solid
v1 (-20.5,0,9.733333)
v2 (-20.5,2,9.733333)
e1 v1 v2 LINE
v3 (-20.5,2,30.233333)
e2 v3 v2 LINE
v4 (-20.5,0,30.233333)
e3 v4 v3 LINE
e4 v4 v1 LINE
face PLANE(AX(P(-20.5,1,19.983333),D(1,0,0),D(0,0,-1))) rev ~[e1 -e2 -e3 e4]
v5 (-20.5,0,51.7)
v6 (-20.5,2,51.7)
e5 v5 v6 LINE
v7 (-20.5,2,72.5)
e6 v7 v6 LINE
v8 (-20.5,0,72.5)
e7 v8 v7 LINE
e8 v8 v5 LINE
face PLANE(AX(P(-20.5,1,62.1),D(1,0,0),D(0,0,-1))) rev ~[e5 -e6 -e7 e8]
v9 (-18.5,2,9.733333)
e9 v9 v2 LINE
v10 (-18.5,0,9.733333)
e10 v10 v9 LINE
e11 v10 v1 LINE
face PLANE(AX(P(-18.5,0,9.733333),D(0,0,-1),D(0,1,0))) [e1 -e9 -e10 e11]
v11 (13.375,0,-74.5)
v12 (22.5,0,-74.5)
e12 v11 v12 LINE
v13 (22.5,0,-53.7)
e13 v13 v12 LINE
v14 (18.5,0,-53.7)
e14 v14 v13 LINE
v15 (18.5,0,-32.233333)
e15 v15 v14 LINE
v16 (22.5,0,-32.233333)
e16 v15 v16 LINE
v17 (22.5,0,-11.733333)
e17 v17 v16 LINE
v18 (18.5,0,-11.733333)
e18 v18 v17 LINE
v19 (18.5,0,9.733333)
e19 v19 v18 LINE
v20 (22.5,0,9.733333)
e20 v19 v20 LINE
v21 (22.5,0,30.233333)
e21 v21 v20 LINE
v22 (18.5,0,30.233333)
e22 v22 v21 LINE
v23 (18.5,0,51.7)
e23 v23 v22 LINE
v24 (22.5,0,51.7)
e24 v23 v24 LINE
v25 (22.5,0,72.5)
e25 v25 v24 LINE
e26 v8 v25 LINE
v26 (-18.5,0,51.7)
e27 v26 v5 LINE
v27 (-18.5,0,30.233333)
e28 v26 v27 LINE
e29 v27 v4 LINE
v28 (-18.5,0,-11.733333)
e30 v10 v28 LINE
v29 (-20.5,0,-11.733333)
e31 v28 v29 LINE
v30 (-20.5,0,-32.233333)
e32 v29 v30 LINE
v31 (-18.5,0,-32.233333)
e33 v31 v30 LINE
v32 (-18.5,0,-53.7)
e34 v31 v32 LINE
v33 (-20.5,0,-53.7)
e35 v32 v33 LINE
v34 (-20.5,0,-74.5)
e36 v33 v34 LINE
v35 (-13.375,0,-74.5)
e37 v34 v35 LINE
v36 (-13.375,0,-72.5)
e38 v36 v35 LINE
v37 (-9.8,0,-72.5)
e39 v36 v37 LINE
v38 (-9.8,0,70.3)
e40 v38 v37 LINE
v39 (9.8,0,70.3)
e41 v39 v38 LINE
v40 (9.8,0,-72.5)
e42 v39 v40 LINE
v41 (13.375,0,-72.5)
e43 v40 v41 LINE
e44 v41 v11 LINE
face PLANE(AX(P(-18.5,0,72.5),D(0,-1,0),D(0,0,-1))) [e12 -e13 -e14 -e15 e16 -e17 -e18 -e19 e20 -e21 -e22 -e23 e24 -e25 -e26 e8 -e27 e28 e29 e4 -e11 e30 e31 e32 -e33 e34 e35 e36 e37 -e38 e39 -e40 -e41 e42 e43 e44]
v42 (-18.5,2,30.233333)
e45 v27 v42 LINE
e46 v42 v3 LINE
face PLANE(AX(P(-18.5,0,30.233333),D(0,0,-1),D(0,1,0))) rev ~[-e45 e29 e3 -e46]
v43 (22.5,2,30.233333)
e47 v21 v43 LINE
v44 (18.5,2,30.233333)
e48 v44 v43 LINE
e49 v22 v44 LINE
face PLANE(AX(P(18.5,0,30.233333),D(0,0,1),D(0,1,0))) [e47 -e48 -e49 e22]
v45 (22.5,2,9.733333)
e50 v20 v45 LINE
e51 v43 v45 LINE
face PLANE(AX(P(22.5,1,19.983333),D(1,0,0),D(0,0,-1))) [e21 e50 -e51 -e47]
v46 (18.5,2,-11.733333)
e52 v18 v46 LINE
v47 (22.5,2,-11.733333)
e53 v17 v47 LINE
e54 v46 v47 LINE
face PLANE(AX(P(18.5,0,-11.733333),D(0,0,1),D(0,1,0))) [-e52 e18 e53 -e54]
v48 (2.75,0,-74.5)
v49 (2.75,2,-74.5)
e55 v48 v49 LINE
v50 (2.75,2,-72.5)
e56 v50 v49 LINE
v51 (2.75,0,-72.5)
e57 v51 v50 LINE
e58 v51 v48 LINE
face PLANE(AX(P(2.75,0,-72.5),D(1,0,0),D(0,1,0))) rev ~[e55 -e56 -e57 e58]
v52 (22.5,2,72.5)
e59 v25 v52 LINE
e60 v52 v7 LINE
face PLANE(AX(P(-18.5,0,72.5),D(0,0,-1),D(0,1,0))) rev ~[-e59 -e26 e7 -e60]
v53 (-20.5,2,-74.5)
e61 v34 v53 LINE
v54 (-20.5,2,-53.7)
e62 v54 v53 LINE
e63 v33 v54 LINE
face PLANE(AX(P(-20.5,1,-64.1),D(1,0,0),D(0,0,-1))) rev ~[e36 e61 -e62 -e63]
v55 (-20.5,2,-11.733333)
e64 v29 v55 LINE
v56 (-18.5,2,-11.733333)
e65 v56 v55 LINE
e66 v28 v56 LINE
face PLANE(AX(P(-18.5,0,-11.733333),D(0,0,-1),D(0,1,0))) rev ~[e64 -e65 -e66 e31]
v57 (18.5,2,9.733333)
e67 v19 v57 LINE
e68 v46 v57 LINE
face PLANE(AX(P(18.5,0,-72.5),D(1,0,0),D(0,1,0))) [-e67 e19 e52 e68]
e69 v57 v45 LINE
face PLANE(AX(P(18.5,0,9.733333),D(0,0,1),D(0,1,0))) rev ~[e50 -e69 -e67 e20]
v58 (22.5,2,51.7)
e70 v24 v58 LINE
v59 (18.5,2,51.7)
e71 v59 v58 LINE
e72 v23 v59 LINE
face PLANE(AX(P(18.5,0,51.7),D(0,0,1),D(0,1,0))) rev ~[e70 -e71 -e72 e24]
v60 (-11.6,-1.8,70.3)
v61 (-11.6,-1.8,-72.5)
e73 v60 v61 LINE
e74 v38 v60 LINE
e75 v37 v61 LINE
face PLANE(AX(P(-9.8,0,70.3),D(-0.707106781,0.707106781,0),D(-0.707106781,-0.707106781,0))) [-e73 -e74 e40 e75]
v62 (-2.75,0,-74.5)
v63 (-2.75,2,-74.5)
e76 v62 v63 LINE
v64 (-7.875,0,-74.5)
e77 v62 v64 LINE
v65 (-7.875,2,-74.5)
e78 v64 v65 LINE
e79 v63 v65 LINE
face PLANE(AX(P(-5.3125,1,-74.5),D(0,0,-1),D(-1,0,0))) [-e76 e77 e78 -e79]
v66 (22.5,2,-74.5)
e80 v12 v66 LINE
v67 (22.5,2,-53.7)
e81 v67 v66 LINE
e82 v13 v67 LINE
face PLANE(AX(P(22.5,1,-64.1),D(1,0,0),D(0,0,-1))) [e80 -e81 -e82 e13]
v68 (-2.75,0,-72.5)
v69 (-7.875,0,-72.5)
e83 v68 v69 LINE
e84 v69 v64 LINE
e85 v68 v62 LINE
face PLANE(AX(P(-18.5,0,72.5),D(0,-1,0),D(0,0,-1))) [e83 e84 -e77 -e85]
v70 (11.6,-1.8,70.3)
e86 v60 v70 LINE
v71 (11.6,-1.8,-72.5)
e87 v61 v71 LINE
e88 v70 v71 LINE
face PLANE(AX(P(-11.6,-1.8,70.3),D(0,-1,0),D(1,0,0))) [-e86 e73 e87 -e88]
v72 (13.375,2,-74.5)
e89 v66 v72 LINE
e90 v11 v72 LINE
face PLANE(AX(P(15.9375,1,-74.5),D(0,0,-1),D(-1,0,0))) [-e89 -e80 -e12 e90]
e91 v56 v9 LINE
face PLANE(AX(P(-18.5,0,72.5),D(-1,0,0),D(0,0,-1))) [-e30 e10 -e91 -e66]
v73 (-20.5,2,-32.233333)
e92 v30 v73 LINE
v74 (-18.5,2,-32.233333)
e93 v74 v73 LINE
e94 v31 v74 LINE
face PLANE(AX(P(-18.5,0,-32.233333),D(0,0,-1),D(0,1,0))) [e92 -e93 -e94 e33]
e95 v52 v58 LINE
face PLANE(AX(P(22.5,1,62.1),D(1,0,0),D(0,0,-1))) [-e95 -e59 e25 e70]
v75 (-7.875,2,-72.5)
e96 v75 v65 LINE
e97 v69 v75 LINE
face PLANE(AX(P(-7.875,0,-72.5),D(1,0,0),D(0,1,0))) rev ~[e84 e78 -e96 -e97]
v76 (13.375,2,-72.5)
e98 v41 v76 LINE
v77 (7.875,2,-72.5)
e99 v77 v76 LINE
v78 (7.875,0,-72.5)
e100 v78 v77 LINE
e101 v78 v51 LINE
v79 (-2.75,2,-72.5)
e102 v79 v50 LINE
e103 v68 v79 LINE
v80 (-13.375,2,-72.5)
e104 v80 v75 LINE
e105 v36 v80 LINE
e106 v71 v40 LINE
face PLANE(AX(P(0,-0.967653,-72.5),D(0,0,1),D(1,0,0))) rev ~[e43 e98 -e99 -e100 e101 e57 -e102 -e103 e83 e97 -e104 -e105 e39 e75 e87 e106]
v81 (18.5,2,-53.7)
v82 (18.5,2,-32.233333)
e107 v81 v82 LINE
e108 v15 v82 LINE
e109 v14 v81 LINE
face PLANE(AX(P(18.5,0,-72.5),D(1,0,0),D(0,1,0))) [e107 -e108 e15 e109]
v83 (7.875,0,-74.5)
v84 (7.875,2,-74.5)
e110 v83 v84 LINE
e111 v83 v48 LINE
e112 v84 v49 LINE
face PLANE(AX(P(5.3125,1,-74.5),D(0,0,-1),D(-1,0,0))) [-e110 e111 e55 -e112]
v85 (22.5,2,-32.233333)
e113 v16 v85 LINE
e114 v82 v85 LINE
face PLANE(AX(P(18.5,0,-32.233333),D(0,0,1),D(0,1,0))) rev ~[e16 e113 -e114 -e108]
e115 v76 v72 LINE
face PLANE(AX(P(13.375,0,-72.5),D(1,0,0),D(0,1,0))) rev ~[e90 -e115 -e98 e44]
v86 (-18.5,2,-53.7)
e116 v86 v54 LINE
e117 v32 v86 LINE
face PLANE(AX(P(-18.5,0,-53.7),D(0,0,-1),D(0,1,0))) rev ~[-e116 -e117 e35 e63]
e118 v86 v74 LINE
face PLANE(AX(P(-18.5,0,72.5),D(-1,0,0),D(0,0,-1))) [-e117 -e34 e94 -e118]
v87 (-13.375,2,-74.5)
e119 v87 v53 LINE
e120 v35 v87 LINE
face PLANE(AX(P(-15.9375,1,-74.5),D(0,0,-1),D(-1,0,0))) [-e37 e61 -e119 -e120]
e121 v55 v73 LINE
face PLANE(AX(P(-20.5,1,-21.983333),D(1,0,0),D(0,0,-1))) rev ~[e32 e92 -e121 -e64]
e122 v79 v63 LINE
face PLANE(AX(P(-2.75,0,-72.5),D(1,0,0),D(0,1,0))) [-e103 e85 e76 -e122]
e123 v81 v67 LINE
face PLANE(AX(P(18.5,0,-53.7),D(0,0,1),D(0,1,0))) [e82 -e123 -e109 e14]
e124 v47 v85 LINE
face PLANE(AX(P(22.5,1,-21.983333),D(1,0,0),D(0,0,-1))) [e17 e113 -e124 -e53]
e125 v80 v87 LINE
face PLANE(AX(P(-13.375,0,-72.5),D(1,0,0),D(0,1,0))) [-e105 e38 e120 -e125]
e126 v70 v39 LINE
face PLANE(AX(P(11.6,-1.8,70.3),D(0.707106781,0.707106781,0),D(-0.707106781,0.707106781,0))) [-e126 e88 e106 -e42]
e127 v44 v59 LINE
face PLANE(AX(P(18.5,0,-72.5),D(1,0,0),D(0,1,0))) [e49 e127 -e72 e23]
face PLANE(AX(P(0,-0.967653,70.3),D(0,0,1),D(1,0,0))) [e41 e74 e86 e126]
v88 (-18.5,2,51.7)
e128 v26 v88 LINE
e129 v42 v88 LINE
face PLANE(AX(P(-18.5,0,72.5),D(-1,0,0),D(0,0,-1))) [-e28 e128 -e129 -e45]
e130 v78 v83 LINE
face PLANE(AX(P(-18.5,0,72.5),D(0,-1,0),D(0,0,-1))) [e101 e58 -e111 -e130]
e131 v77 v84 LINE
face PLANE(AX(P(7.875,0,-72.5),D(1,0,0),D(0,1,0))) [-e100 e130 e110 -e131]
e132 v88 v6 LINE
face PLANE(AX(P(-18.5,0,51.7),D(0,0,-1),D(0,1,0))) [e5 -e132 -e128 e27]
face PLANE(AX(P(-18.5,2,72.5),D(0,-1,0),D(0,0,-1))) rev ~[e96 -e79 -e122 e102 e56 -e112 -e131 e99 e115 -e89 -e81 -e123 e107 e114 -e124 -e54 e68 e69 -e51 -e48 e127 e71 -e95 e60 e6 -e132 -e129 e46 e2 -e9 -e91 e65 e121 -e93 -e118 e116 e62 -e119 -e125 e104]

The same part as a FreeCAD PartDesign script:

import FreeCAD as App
import Part
import Sketcher
from FreeCAD import Vector
Q = App.Units.Quantity

doc = App.newDocument("Part")
body = doc.addObject("PartDesign::Body", "Body")

# Sketch on XZ plane
sketch1 = body.newObject("Sketcher::SketchObject", "Sketch")
sketch1.AttachmentSupport = (doc.getObject("XZ_Plane"), [""])
sketch1.MapMode = "FlatFace"
sketch1.addGeometry([
    Part.LineSegment(Vector(-18, -72, 0), Vector(-18, 72, 0)),
    Part.LineSegment(Vector(-18, 72, 0), Vector(18, 72, 0)),
    Part.LineSegment(Vector(18, 72, 0), Vector(18, -72, 0)),
    Part.LineSegment(Vector(18, -72, 0), Vector(-18, -72, 0)),
], False)
sketch1.addConstraint([
    Sketcher.Constraint("Coincident", 0, 2, 1, 1),
    Sketcher.Constraint("Coincident", 1, 2, 2, 1),
    Sketcher.Constraint("Coincident", 2, 2, 3, 1),
    Sketcher.Constraint("Coincident", 3, 2, 0, 1),
    Sketcher.Constraint("Vertical", 0),
    Sketcher.Constraint("Horizontal", 1),
    Sketcher.Constraint("Vertical", 2),
    Sketcher.Constraint("Horizontal", 3),
    Sketcher.Constraint("Symmetric", 0, 2, 2, 2, -1, 1),
    Sketcher.Constraint("DistanceX", 1, 1, 1, 2, Q("37 mm")),
    Sketcher.Constraint("DistanceY", 0, 1, 0, 2, Q("145 mm")),
])
pad1 = body.newObject("PartDesign::Pad", "Pad")
pad1.Profile = sketch1
pad1.Length = 2
pad1.Reversed = True

# Sketch on XY plane
sketch2 = body.newObject("Sketcher::SketchObject", "Sketch001")
sketch2.AttachmentSupport = (doc.getObject("XY_Plane"), [""])
sketch2.MapMode = "FlatFace"
sketch2.AttachmentOffset = App.Placement(Vector(0, 0, -72.5), App.Rotation())
sketch2.addGeometry([
    Part.LineSegment(Vector(18.5, 2, 0), Vector(18.5, 0, 0)),  # 0
    Part.LineSegment(Vector(18.5, 0, 0), Vector(13.4, 0, 0)),  # 1
    Part.LineSegment(Vector(13.4, 0, 0), Vector(13.4, 2, 0)),  # 2
    Part.LineSegment(Vector(13.4, 2, 0), Vector(18.5, 2, 0)),  # 3
    Part.LineSegment(Vector(7.9, 2, 0), Vector(7.9, 0, 0)),  # 4
    Part.LineSegment(Vector(7.9, 0, 0), Vector(2.8, 0, 0)),  # 5
    Part.LineSegment(Vector(2.8, 0, 0), Vector(2.8, 2, 0)),  # 6
    Part.LineSegment(Vector(2.8, 2, 0), Vector(7.9, 2, 0)),  # 7
    Part.LineSegment(Vector(-2.8, 2, 0), Vector(-2.8, 0, 0)),  # 8
    Part.LineSegment(Vector(-2.8, 0, 0), Vector(-7.9, 0, 0)),  # 9
    Part.LineSegment(Vector(-7.9, 0, 0), Vector(-7.9, 2, 0)),  # 10
    Part.LineSegment(Vector(-7.9, 2, 0), Vector(-2.8, 2, 0)),  # 11
    Part.LineSegment(Vector(-13.4, 2, 0), Vector(-13.4, 0, 0)),  # 12
    Part.LineSegment(Vector(-13.4, 0, 0), Vector(-18.5, 0, 0)),  # 13
    Part.LineSegment(Vector(-18.5, 0, 0), Vector(-18.5, 2, 0)),  # 14
    Part.LineSegment(Vector(-18.5, 2, 0), Vector(-13.4, 2, 0)),  # 15
], False)
sketch2.addConstraint([
    Sketcher.Constraint("Coincident", 0, 2, 1, 1),
    Sketcher.Constraint("Coincident", 1, 2, 2, 1),
    Sketcher.Constraint("Coincident", 2, 2, 3, 1),
    Sketcher.Constraint("Coincident", 3, 2, 0, 1),
    Sketcher.Constraint("Coincident", 4, 2, 5, 1),
    Sketcher.Constraint("Coincident", 5, 2, 6, 1),
    Sketcher.Constraint("Coincident", 6, 2, 7, 1),
    Sketcher.Constraint("Coincident", 7, 2, 4, 1),
    Sketcher.Constraint("Coincident", 8, 2, 9, 1),
    Sketcher.Constraint("Coincident", 9, 2, 10, 1),
    Sketcher.Constraint("Coincident", 10, 2, 11, 1),
    Sketcher.Constraint("Coincident", 11, 2, 8, 1),
    Sketcher.Constraint("Coincident", 12, 2, 13, 1),
    Sketcher.Constraint("Coincident", 13, 2, 14, 1),
    Sketcher.Constraint("Coincident", 14, 2, 15, 1),
    Sketcher.Constraint("Coincident", 15, 2, 12, 1),
    Sketcher.Constraint("Vertical", 0),
    Sketcher.Constraint("Horizontal", 1),
    Sketcher.Constraint("Vertical", 2),
    Sketcher.Constraint("Horizontal", 3),
    Sketcher.Constraint("Vertical", 4),
    Sketcher.Constraint("Horizontal", 5),
    Sketcher.Constraint("Vertical", 6),
    Sketcher.Constraint("Horizontal", 7),
    Sketcher.Constraint("Vertical", 8),
    Sketcher.Constraint("Horizontal", 9),
    Sketcher.Constraint("Vertical", 10),
    Sketcher.Constraint("Horizontal", 11),
    Sketcher.Constraint("Vertical", 12),
    Sketcher.Constraint("Horizontal", 13),
    Sketcher.Constraint("Vertical", 14),
    Sketcher.Constraint("Horizontal", 15),
    Sketcher.Constraint("Symmetric", 5, 2, 8, 2, -1, 1),
    Sketcher.Constraint("Symmetric", 1, 2, 12, 2, -1, 1),
    Sketcher.Constraint("Symmetric", 4, 2, 9, 2, -2),
    Sketcher.Constraint("Symmetric", 0, 2, 13, 2, -2),
    Sketcher.Constraint("Horizontal", 3, 2, 6, 2),
    Sketcher.Constraint("Horizontal", 7, 2, 10, 2),
    Sketcher.Constraint("Horizontal", 11, 2, 14, 2),
    Sketcher.Constraint("Equal", 3, 5),
    Sketcher.Constraint("DistanceY", 0, 2, 0, 1, Q("2 mm")),
    Sketcher.Constraint("DistanceX", -1, 1, 0, 2, Q("18.5 mm")),
    Sketcher.Constraint("DistanceX", 4, 2, 1, 2, Q("5.5 mm")),
    Sketcher.Constraint("DistanceX", 8, 2, 5, 2, Q("5.5 mm")),
])
pad2 = body.newObject("PartDesign::Pad", "Pad001")
pad2.Profile = sketch2
pad2.Length = 2
pad2.Reversed = True

# Sketch on YZ plane
sketch3 = body.newObject("Sketcher::SketchObject", "Sketch002")
sketch3.AttachmentSupport = (doc.getObject("YZ_Plane"), [""])
sketch3.MapMode = "FlatFace"
sketch3.AttachmentOffset = App.Placement(Vector(0, 0, 18.5), App.Rotation())
sketch3.addGeometry([
    Part.LineSegment(Vector(2, 72.5, 0), Vector(0, 72.5, 0)),  # 0
    Part.LineSegment(Vector(0, 72.5, 0), Vector(0, 51.7, 0)),  # 1
    Part.LineSegment(Vector(0, 51.7, 0), Vector(2, 51.7, 0)),  # 2
    Part.LineSegment(Vector(2, 51.7, 0), Vector(2, 72.5, 0)),  # 3
    Part.LineSegment(Vector(2, 30.2, 0), Vector(0, 30.2, 0)),  # 4
    Part.LineSegment(Vector(0, 30.2, 0), Vector(0, 9.7, 0)),  # 5
    Part.LineSegment(Vector(0, 9.7, 0), Vector(2, 9.7, 0)),  # 6
    Part.LineSegment(Vector(2, 9.7, 0), Vector(2, 30.2, 0)),  # 7
    Part.LineSegment(Vector(2, -11.7, 0), Vector(0, -11.7, 0)),  # 8
    Part.LineSegment(Vector(0, -11.7, 0), Vector(0, -32.2, 0)),  # 9
    Part.LineSegment(Vector(0, -32.2, 0), Vector(2, -32.2, 0)),  # 10
    Part.LineSegment(Vector(2, -32.2, 0), Vector(2, -11.7, 0)),  # 11
    Part.LineSegment(Vector(2, -53.7, 0), Vector(0, -53.7, 0)),  # 12
    Part.LineSegment(Vector(0, -53.7, 0), Vector(0, -74.5, 0)),  # 13
    Part.LineSegment(Vector(0, -74.5, 0), Vector(2, -74.5, 0)),  # 14
    Part.LineSegment(Vector(2, -74.5, 0), Vector(2, -53.7, 0)),  # 15
], False)
sketch3.addConstraint([
    Sketcher.Constraint("Coincident", 0, 2, 1, 1),
    Sketcher.Constraint("Coincident", 1, 2, 2, 1),
    Sketcher.Constraint("Coincident", 2, 2, 3, 1),
    Sketcher.Constraint("Coincident", 3, 2, 0, 1),
    Sketcher.Constraint("Coincident", 4, 2, 5, 1),
    Sketcher.Constraint("Coincident", 5, 2, 6, 1),
    Sketcher.Constraint("Coincident", 6, 2, 7, 1),
    Sketcher.Constraint("Coincident", 7, 2, 4, 1),
    Sketcher.Constraint("Coincident", 8, 2, 9, 1),
    Sketcher.Constraint("Coincident", 9, 2, 10, 1),
    Sketcher.Constraint("Coincident", 10, 2, 11, 1),
    Sketcher.Constraint("Coincident", 11, 2, 8, 1),
    Sketcher.Constraint("Coincident", 12, 2, 13, 1),
    Sketcher.Constraint("Coincident", 13, 2, 14, 1),
    Sketcher.Constraint("Coincident", 14, 2, 15, 1),
    Sketcher.Constraint("Coincident", 15, 2, 12, 1),
    Sketcher.Constraint("Horizontal", 0),
    Sketcher.Constraint("Vertical", 1),
    Sketcher.Constraint("Horizontal", 2),
    Sketcher.Constraint("Vertical", 3),
    Sketcher.Constraint("Horizontal", 4),
    Sketcher.Constraint("Vertical", 5),
    Sketcher.Constraint("Horizontal", 6),
    Sketcher.Constraint("Vertical", 7),
    Sketcher.Constraint("Horizontal", 8),
    Sketcher.Constraint("Vertical", 9),
    Sketcher.Constraint("Horizontal", 10),
    Sketcher.Constraint("Vertical", 11),
    Sketcher.Constraint("Horizontal", 12),
    Sketcher.Constraint("Vertical", 13),
    Sketcher.Constraint("Horizontal", 14),
    Sketcher.Constraint("Vertical", 15),
    Sketcher.Constraint("PointOnObject", 0, 2, -2),
    Sketcher.Constraint("PointOnObject", 4, 2, -2),
    Sketcher.Constraint("PointOnObject", 8, 2, -2),
    Sketcher.Constraint("PointOnObject", 12, 2, -2),
    Sketcher.Constraint("Vertical", 3, 2, 6, 2),
    Sketcher.Constraint("Vertical", 7, 2, 10, 2),
    Sketcher.Constraint("Vertical", 11, 2, 14, 2),
    Sketcher.Constraint("Equal", 7, 9),
    Sketcher.Constraint("Equal", 3, 13),
    Sketcher.Constraint("DistanceX", 0, 2, 0, 1, Q("2 mm")),
    Sketcher.Constraint("DistanceY", 1, 2, 1, 1, Q("20.8 mm")),
    Sketcher.Constraint("DistanceY", 5, 2, 5, 1, Q("20.5 mm")),
    Sketcher.Constraint("DistanceY", -1, 1, 0, 2, Q("72.5 mm")),
    Sketcher.Constraint("DistanceY", 12, 2, -1, 1, Q("53.7 mm")),
    Sketcher.Constraint("DistanceY", -1, 1, 4, 2, Q("30.233333 mm")),
    Sketcher.Constraint("DistanceY", 8, 2, -1, 1, Q("11.733333 mm")),
])
pad3 = body.newObject("PartDesign::Pad", "Pad002")
pad3.Profile = sketch3
pad3.Length = 4

# Sketch on YZ plane
sketch4 = body.newObject("Sketcher::SketchObject", "Sketch003")
sketch4.AttachmentSupport = (doc.getObject("YZ_Plane"), [""])
sketch4.MapMode = "FlatFace"
sketch4.AttachmentOffset = App.Placement(Vector(0, 0, -18.5), App.Rotation())
sketch4.addGeometry([
    Part.LineSegment(Vector(2, 72.5, 0), Vector(0, 72.5, 0)),  # 0
    Part.LineSegment(Vector(0, 72.5, 0), Vector(0, 51.7, 0)),  # 1
    Part.LineSegment(Vector(0, 51.7, 0), Vector(2, 51.7, 0)),  # 2
    Part.LineSegment(Vector(2, 51.7, 0), Vector(2, 72.5, 0)),  # 3
    Part.LineSegment(Vector(2, 30.2, 0), Vector(0, 30.2, 0)),  # 4
    Part.LineSegment(Vector(0, 30.2, 0), Vector(0, 9.7, 0)),  # 5
    Part.LineSegment(Vector(0, 9.7, 0), Vector(2, 9.7, 0)),  # 6
    Part.LineSegment(Vector(2, 9.7, 0), Vector(2, 30.2, 0)),  # 7
    Part.LineSegment(Vector(2, -11.7, 0), Vector(0, -11.7, 0)),  # 8
    Part.LineSegment(Vector(0, -11.7, 0), Vector(0, -32.2, 0)),  # 9
    Part.LineSegment(Vector(0, -32.2, 0), Vector(2, -32.2, 0)),  # 10
    Part.LineSegment(Vector(2, -32.2, 0), Vector(2, -11.7, 0)),  # 11
    Part.LineSegment(Vector(2, -53.7, 0), Vector(0, -53.7, 0)),  # 12
    Part.LineSegment(Vector(0, -53.7, 0), Vector(0, -74.5, 0)),  # 13
    Part.LineSegment(Vector(0, -74.5, 0), Vector(2, -74.5, 0)),  # 14
    Part.LineSegment(Vector(2, -74.5, 0), Vector(2, -53.7, 0)),  # 15
], False)
sketch4.addConstraint([
    Sketcher.Constraint("Coincident", 0, 2, 1, 1),
    Sketcher.Constraint("Coincident", 1, 2, 2, 1),
    Sketcher.Constraint("Coincident", 2, 2, 3, 1),
    Sketcher.Constraint("Coincident", 3, 2, 0, 1),
    Sketcher.Constraint("Coincident", 4, 2, 5, 1),
    Sketcher.Constraint("Coincident", 5, 2, 6, 1),
    Sketcher.Constraint("Coincident", 6, 2, 7, 1),
    Sketcher.Constraint("Coincident", 7, 2, 4, 1),
    Sketcher.Constraint("Coincident", 8, 2, 9, 1),
    Sketcher.Constraint("Coincident", 9, 2, 10, 1),
    Sketcher.Constraint("Coincident", 10, 2, 11, 1),
    Sketcher.Constraint("Coincident", 11, 2, 8, 1),
    Sketcher.Constraint("Coincident", 12, 2, 13, 1),
    Sketcher.Constraint("Coincident", 13, 2, 14, 1),
    Sketcher.Constraint("Coincident", 14, 2, 15, 1),
    Sketcher.Constraint("Coincident", 15, 2, 12, 1),
    Sketcher.Constraint("Horizontal", 0),
    Sketcher.Constraint("Vertical", 1),
    Sketcher.Constraint("Horizontal", 2),
    Sketcher.Constraint("Vertical", 3),
    Sketcher.Constraint("Horizontal", 4),
    Sketcher.Constraint("Vertical", 5),
    Sketcher.Constraint("Horizontal", 6),
    Sketcher.Constraint("Vertical", 7),
    Sketcher.Constraint("Horizontal", 8),
    Sketcher.Constraint("Vertical", 9),
    Sketcher.Constraint("Horizontal", 10),
    Sketcher.Constraint("Vertical", 11),
    Sketcher.Constraint("Horizontal", 12),
    Sketcher.Constraint("Vertical", 13),
    Sketcher.Constraint("Horizontal", 14),
    Sketcher.Constraint("Vertical", 15),
    Sketcher.Constraint("PointOnObject", 0, 2, -2),
    Sketcher.Constraint("PointOnObject", 4, 2, -2),
    Sketcher.Constraint("PointOnObject", 8, 2, -2),
    Sketcher.Constraint("PointOnObject", 12, 2, -2),
    Sketcher.Constraint("Vertical", 3, 2, 6, 2),
    Sketcher.Constraint("Vertical", 7, 2, 10, 2),
    Sketcher.Constraint("Vertical", 11, 2, 14, 2),
    Sketcher.Constraint("Equal", 7, 9),
    Sketcher.Constraint("Equal", 3, 13),
    Sketcher.Constraint("DistanceX", 0, 2, 0, 1, Q("2 mm")),
    Sketcher.Constraint("DistanceY", 1, 2, 1, 1, Q("20.8 mm")),
    Sketcher.Constraint("DistanceY", 5, 2, 5, 1, Q("20.5 mm")),
    Sketcher.Constraint("DistanceY", -1, 1, 0, 2, Q("72.5 mm")),
    Sketcher.Constraint("DistanceY", 12, 2, -1, 1, Q("53.7 mm")),
    Sketcher.Constraint("DistanceY", -1, 1, 4, 2, Q("30.233333 mm")),
    Sketcher.Constraint("DistanceY", 8, 2, -1, 1, Q("11.733333 mm")),
])
pad4 = body.newObject("PartDesign::Pad", "Pad003")
pad4.Profile = sketch4
pad4.Length = 2
pad4.Reversed = True

# Sketch on XY plane
sketch5 = body.newObject("Sketcher::SketchObject", "Sketch004")
sketch5.AttachmentSupport = (doc.getObject("XY_Plane"), [""])
sketch5.MapMode = "FlatFace"
sketch5.AttachmentOffset = App.Placement(Vector(0, 0, 70.3), App.Rotation())
sketch5.addGeometry([
    Part.LineSegment(Vector(-9.8, 0, 0), Vector(-11.6, -1.8, 0)),
    Part.LineSegment(Vector(-11.6, -1.8, 0), Vector(11.6, -1.8, 0)),
    Part.LineSegment(Vector(11.6, -1.8, 0), Vector(9.8, 0, 0)),
    Part.LineSegment(Vector(9.8, 0, 0), Vector(-9.8, 0, 0)),
], False)
sketch5.addConstraint([
    Sketcher.Constraint("Coincident", 0, 2, 1, 1),
    Sketcher.Constraint("Coincident", 1, 2, 2, 1),
    Sketcher.Constraint("Coincident", 2, 2, 3, 1),
    Sketcher.Constraint("Coincident", 3, 2, 0, 1),
    Sketcher.Constraint("Horizontal", 1),
    Sketcher.Constraint("Horizontal", 3),
    Sketcher.Constraint("Symmetric", 2, 2, 3, 2, -1, 1),
    Sketcher.Constraint("Perpendicular", 0, 2),
    Sketcher.Constraint("Equal", 0, 2),
    Sketcher.Constraint("DistanceX", 1, 1, 1, 2, Q("23.2 mm")),
    Sketcher.Constraint("DistanceX", 3, 2, 3, 1, Q("19.6 mm")),
])
pad5 = body.newObject("PartDesign::Pad", "Pad004")
pad5.Profile = sketch5
pad5.Length = 142.8
pad5.Reversed = True

doc.recompute()
